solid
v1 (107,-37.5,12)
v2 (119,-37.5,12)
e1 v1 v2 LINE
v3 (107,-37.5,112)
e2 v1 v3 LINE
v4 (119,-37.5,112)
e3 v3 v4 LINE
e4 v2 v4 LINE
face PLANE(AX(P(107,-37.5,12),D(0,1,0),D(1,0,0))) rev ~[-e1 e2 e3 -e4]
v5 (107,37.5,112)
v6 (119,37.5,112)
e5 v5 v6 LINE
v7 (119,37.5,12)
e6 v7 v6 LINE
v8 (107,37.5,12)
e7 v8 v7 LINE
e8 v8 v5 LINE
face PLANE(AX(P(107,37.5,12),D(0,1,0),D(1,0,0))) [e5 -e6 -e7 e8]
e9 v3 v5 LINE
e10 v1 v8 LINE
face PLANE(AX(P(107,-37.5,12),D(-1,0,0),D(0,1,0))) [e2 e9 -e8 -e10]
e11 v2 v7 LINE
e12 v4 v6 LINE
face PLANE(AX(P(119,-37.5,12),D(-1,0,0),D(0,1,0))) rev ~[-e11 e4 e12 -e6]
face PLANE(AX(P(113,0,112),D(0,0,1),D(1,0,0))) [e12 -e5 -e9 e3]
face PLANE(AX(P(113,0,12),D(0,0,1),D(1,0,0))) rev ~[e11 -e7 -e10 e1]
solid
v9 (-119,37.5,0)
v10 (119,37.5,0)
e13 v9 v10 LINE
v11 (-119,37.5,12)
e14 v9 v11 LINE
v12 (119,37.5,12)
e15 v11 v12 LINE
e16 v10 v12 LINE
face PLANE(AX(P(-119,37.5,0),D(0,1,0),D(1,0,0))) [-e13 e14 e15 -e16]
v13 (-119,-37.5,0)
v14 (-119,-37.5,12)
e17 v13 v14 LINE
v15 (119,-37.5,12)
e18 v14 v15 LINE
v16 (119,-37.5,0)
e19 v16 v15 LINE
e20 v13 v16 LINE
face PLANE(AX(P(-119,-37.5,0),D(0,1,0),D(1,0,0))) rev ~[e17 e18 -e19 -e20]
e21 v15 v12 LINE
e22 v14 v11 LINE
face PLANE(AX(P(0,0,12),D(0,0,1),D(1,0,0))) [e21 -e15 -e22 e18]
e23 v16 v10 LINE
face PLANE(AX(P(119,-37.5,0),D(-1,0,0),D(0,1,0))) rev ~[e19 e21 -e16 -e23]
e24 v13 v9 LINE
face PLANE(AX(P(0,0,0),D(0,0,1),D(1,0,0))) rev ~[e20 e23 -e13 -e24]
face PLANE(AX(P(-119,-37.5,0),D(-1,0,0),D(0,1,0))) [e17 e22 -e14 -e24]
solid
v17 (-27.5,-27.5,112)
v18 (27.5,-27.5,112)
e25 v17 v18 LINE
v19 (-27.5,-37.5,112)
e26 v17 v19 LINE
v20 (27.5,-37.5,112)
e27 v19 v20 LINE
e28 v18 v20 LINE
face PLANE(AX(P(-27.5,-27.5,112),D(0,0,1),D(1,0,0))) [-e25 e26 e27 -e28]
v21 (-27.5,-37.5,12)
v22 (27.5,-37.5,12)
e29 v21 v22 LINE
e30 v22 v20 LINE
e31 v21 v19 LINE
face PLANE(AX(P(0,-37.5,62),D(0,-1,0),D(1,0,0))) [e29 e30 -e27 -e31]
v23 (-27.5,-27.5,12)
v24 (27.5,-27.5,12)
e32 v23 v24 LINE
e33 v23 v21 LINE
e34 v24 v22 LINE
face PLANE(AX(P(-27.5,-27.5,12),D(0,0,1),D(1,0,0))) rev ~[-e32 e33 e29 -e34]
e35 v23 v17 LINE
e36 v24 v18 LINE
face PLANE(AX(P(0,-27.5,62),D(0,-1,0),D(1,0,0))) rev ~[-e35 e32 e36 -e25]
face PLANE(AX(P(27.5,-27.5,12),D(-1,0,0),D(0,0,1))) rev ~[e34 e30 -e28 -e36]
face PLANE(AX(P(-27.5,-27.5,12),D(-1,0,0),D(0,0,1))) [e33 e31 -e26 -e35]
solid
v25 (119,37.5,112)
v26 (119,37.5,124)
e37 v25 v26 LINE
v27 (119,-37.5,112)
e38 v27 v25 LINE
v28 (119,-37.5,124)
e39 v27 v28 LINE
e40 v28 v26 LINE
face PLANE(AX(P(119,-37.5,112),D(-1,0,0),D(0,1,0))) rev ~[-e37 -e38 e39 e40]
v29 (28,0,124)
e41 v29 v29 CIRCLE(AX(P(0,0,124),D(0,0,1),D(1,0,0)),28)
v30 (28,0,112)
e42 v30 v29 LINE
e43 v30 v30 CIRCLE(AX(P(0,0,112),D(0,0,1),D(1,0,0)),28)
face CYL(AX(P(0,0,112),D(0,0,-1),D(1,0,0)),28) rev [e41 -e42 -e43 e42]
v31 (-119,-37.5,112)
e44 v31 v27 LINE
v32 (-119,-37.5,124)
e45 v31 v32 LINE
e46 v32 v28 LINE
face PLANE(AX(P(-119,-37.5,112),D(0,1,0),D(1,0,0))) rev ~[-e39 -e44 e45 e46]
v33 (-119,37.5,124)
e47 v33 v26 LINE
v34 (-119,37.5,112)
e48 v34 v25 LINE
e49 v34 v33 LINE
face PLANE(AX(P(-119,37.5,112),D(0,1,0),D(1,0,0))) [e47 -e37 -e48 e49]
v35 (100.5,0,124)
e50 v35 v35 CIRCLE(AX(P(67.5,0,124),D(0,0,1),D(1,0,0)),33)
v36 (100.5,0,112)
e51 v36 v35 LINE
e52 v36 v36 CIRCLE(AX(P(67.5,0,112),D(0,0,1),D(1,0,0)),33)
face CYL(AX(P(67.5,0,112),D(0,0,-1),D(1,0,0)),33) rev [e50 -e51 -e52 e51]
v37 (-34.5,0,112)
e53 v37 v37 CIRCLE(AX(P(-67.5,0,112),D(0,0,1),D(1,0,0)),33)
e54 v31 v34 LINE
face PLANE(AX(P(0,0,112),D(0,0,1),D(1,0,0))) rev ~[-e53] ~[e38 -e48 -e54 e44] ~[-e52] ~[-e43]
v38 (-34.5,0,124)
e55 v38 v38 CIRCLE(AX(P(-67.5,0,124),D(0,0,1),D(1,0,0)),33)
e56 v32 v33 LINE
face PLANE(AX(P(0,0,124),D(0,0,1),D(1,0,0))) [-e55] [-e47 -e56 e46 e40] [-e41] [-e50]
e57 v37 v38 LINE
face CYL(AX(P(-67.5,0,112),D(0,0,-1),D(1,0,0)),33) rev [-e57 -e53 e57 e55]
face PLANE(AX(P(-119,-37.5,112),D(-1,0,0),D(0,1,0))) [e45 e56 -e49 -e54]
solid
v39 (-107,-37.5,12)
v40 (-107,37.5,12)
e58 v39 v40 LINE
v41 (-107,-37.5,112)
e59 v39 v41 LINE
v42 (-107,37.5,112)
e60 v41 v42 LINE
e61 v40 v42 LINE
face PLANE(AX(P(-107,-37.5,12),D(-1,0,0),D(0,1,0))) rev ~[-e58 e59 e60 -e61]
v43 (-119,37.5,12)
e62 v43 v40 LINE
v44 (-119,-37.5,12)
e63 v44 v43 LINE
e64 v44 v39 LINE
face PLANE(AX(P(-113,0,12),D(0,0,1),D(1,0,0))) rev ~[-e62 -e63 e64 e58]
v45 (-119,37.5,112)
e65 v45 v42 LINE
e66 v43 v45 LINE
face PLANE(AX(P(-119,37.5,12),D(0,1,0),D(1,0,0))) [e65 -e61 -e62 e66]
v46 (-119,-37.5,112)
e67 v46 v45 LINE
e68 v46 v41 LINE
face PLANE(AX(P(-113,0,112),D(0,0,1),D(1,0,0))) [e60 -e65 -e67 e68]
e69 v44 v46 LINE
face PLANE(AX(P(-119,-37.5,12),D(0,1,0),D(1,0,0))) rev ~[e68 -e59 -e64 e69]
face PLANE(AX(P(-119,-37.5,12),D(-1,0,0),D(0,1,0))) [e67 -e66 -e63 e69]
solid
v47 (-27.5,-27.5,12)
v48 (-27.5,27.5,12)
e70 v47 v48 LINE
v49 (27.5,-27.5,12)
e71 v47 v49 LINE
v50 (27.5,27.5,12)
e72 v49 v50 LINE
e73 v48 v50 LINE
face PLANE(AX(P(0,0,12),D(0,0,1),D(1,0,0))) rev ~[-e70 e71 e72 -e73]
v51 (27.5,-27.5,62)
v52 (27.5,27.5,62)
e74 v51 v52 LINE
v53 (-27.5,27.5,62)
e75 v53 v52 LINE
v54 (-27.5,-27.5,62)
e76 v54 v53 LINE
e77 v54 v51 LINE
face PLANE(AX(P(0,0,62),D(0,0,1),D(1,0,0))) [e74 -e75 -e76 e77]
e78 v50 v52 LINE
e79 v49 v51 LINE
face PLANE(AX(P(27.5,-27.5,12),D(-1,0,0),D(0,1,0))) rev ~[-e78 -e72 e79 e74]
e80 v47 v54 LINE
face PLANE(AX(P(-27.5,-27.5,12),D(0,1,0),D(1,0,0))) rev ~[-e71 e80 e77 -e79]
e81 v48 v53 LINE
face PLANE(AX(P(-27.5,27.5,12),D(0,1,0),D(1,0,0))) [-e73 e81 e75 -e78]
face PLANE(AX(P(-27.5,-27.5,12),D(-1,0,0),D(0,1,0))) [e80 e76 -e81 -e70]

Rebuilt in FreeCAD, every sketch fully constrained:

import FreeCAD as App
import Part
import Sketcher

V = App.Vector

doc = App.newDocument("Part")
params = doc.addObject("Spreadsheet::Sheet", "Params")
for row, (alias, value) in enumerate([
    ("sketch1_width", "238 mm"),
    ("sketch1_height", "75 mm"),
    ("pad1_length", "12 mm"),
    ("sketch2_diameter", "66 mm"),
    ("sketch2_diameter2", "56 mm"),
    ("sketch2_width", "238 mm"),
    ("sketch2_height", "75 mm"),
    ("pad2_length", "12 mm"),
    ("sketch3_width", "12 mm"),
    ("sketch3_height", "75 mm"),
    ("pad3_length", "100 mm"),
    ("sketch4_width", "55 mm"),
    ("pad4_length", "50 mm"),
    ("sketch5_width", "55 mm"),
    ("sketch5_height", "100 mm"),
    ("pad5_length", "10 mm"),
], start=1):
    params.set(f"A{row}", alias)
    params.set(f"B{row}", "=" + value)
    params.setAlias(f"B{row}", alias)

body = doc.addObject("PartDesign::Body", "Body")

sketch1 = body.newObject("Sketcher::SketchObject", "Sketch")
sketch1.AttachmentSupport = (doc.getObject("XY_Plane"), [""])
sketch1.MapMode = "FlatFace"
sketch1.addGeometry([
    Part.LineSegment(V(-119, 37.5, 0), V(-119, -37.5, 0)),
    Part.LineSegment(V(-119, -37.5, 0), V(119, -37.5, 0)),
    Part.LineSegment(V(119, -37.5, 0), V(119, 37.5, 0)),
    Part.LineSegment(V(119, 37.5, 0), V(-119, 37.5, 0)),
], False)
sketch1.addConstraint([
    Sketcher.Constraint("Coincident", 0, 2, 1, 1),
    Sketcher.Constraint("Coincident", 1, 2, 2, 1),
    Sketcher.Constraint("Coincident", 2, 2, 3, 1),
    Sketcher.Constraint("Coincident", 3, 2, 0, 1),
    Sketcher.Constraint("Vertical", 0),
    Sketcher.Constraint("Horizontal", 1),
    Sketcher.Constraint("Vertical", 2),
    Sketcher.Constraint("Horizontal", 3),
    Sketcher.Constraint("Symmetric", 0, 2, 2, 2, -1, 1),
    Sketcher.Constraint("DistanceX", 1, 1, 1, 2, 238.0),
    Sketcher.Constraint("DistanceY", 0, 2, 0, 1, 75.0),
])
sketch1.setExpression("Constraints[9]", "Params.sketch1_width")
sketch1.setExpression("Constraints[10]", "Params.sketch1_height")
pad1 = body.newObject("PartDesign::Pad", "Pad")
pad1.Profile = sketch1
pad1.setExpression("Length", "Params.pad1_length")
body2 = doc.addObject("PartDesign::Body", "Body001")

sketch2 = body2.newObject("Sketcher::SketchObject", "Sketch001")
sketch2.AttachmentSupport = (doc.getObject("XY_Plane001"), [""])
sketch2.MapMode = "FlatFace"
sketch2.AttachmentOffset = App.Placement(V(0, 0, 112), App.Rotation())
sketch2.addGeometry([
    Part.LineSegment(V(-119, 37.5, 0), V(-119, -37.5, 0)),
    Part.LineSegment(V(-119, -37.5, 0), V(119, -37.5, 0)),
    Part.LineSegment(V(119, -37.5, 0), V(119, 37.5, 0)),
    Part.LineSegment(V(119, 37.5, 0), V(-119, 37.5, 0)),
    Part.Circle(V(-67.5, 0, 0), V(0, 0, 1), 33),
    Part.Circle(V(0, 0, 0), V(0, 0, 1), 28),
    Part.Circle(V(67.5, 0, 0), V(0, 0, 1), 33),
], False)
sketch2.addConstraint([
    Sketcher.Constraint("Coincident", 0, 2, 1, 1),
    Sketcher.Constraint("Coincident", 1, 2, 2, 1),
    Sketcher.Constraint("Coincident", 2, 2, 3, 1),
    Sketcher.Constraint("Coincident", 3, 2, 0, 1),
    Sketcher.Constraint("Vertical", 0),
    Sketcher.Constraint("Horizontal", 1),
    Sketcher.Constraint("Vertical", 2),
    Sketcher.Constraint("Horizontal", 3),
    Sketcher.Constraint("Coincident", 5, 3, -1, 1),
    Sketcher.Constraint("Equal", 4, 6),
    Sketcher.Constraint("Symmetric", 4, 3, 6, 3, -1, 1),
    Sketcher.Constraint("Symmetric", 0, 2, 2, 2, -1, 1),
    Sketcher.Constraint("PointOnObject", 4, 3, -1),
    Sketcher.Constraint("Diameter", 4, 66.0),
    Sketcher.Constraint("Diameter", 5, 56.0),
    Sketcher.Constraint("DistanceX", 1, 1, 1, 2, 238.0),
    Sketcher.Constraint("DistanceY", 0, 2, 0, 1, 75.0),
    Sketcher.Constraint("DistanceX", 4, 3, 6, 3, 135.0),
])
sketch2.setExpression("Constraints[13]", "Params.sketch2_diameter")
sketch2.setExpression("Constraints[14]", "Params.sketch2_diameter2")
sketch2.setExpression("Constraints[15]", "Params.sketch2_width")
sketch2.setExpression("Constraints[16]", "Params.sketch2_height")
pad2 = body2.newObject("PartDesign::Pad", "Pad001")
pad2.Profile = sketch2
pad2.setExpression("Length", "Params.pad2_length")
body3 = doc.addObject("PartDesign::Body", "Body002")
body3.AllowCompound = True

sketch3 = body3.newObject("Sketcher::SketchObject", "Sketch002")
sketch3.AttachmentSupport = (doc.getObject("XY_Plane002"), [""])
sketch3.MapMode = "FlatFace"
sketch3.AttachmentOffset = App.Placement(V(0, 0, 12), App.Rotation())
sketch3.addGeometry([
    Part.LineSegment(V(-119, 37.5, 0), V(-119, -37.5, 0)),
    Part.LineSegment(V(-119, -37.5, 0), V(-107, -37.5, 0)),
    Part.LineSegment(V(-107, -37.5, 0), V(-107, 37.5, 0)),
    Part.LineSegment(V(-107, 37.5, 0), V(-119, 37.5, 0)),
    Part.LineSegment(V(107, 37.5, 0), V(107, -37.5, 0)),
    Part.LineSegment(V(107, -37.5, 0), V(119, -37.5, 0)),
    Part.LineSegment(V(119, -37.5, 0), V(119, 37.5, 0)),
    Part.LineSegment(V(119, 37.5, 0), V(107, 37.5, 0)),
], False)
sketch3.addConstraint([
    Sketcher.Constraint("Coincident", 0, 2, 1, 1),
    Sketcher.Constraint("Coincident", 1, 2, 2, 1),
    Sketcher.Constraint("Coincident", 2, 2, 3, 1),
    Sketcher.Constraint("Coincident", 3, 2, 0, 1),
    Sketcher.Constraint("Coincident", 4, 2, 5, 1),
    Sketcher.Constraint("Coincident", 5, 2, 6, 1),
    Sketcher.Constraint("Coincident", 6, 2, 7, 1),
    Sketcher.Constraint("Coincident", 7, 2, 4, 1),
    Sketcher.Constraint("Vertical", 0),
    Sketcher.Constraint("Horizontal", 1),
    Sketcher.Constraint("Vertical", 2),
    Sketcher.Constraint("Horizontal", 3),
    Sketcher.Constraint("Vertical", 4),
    Sketcher.Constraint("Horizontal", 5),
    Sketcher.Constraint("Vertical", 6),
    Sketcher.Constraint("Horizontal", 7),
    Sketcher.Constraint("Symmetric", 2, 2, 4, 2, -1, 1),
    Sketcher.Constraint("Symmetric", 0, 2, 6, 2, -1, 1),
    Sketcher.Constraint("Horizontal", 1, 2, 4, 2),
    Sketcher.Constraint("DistanceX", 1, 1, 1, 2, 12.0),
    Sketcher.Constraint("DistanceY", 0, 2, 0, 1, 75.0),
    Sketcher.Constraint("DistanceX", 0, 2, -1, 1, 119.0),
])
sketch3.setExpression("Constraints[19]", "Params.sketch3_width")
sketch3.setExpression("Constraints[20]", "Params.sketch3_height")
pad3 = body3.newObject("PartDesign::Pad", "Pad002")
pad3.Profile = sketch3
pad3.setExpression("Length", "Params.pad3_length")
body4 = doc.addObject("PartDesign::Body", "Body003")

sketch4 = body4.newObject("Sketcher::SketchObject", "Sketch003")
sketch4.AttachmentSupport = (doc.getObject("XY_Plane003"), [""])
sketch4.MapMode = "FlatFace"
sketch4.AttachmentOffset = App.Placement(V(0, 0, 12), App.Rotation())
sketch4.addGeometry([
    Part.LineSegment(V(-27.5, 27.5, 0), V(-27.5, -27.5, 0)),
    Part.LineSegment(V(-27.5, -27.5, 0), V(27.5, -27.5, 0)),
    Part.LineSegment(V(27.5, -27.5, 0), V(27.5, 27.5, 0)),
    Part.LineSegment(V(27.5, 27.5, 0), V(-27.5, 27.5, 0)),
], False)
sketch4.addConstraint([
    Sketcher.Constraint("Coincident", 0, 2, 1, 1),
    Sketcher.Constraint("Coincident", 1, 2, 2, 1),
    Sketcher.Constraint("Coincident", 2, 2, 3, 1),
    Sketcher.Constraint("Coincident", 3, 2, 0, 1),
    Sketcher.Constraint("Vertical", 0),
    Sketcher.Constraint("Horizontal", 1),
    Sketcher.Constraint("Vertical", 2),
    Sketcher.Constraint("Horizontal", 3),
    Sketcher.Constraint("Symmetric", 0, 2, 2, 2, -1, 1),
    Sketcher.Constraint("Equal", 3, 0),
    Sketcher.Constraint("DistanceX", 1, 1, 1, 2, 55.0),
])
sketch4.setExpression("Constraints[10]", "Params.sketch4_width")
pad4 = body4.newObject("PartDesign::Pad", "Pad003")
pad4.Profile = sketch4
pad4.setExpression("Length", "Params.pad4_length")
body5 = doc.addObject("PartDesign::Body", "Body004")

sketch5 = body5.newObject("Sketcher::SketchObject", "Sketch004")
sketch5.AttachmentSupport = (doc.getObject("XZ_Plane004"), [""])
sketch5.MapMode = "FlatFace"
sketch5.AttachmentOffset = App.Placement(V(0, 0, 27.5), App.Rotation())
sketch5.addGeometry([
    Part.LineSegment(V(-27.5, 112, 0), V(-27.5, 12, 0)),
    Part.LineSegment(V(-27.5, 12, 0), V(27.5, 12, 0)),
    Part.LineSegment(V(27.5, 12, 0), V(27.5, 112, 0)),
    Part.LineSegment(V(27.5, 112, 0), V(-27.5, 112, 0)),
], False)
sketch5.addConstraint([
    Sketcher.Constraint("Coincident", 0, 2, 1, 1),
    Sketcher.Constraint("Coincident", 1, 2, 2, 1),
    Sketcher.Constraint("Coincident", 2, 2, 3, 1),
    Sketcher.Constraint("Coincident", 3, 2, 0, 1),
    Sketcher.Constraint("Vertical", 0),
    Sketcher.Constraint("Horizontal", 1),
    Sketcher.Constraint("Vertical", 2),
    Sketcher.Constraint("Horizontal", 3),
    Sketcher.Constraint("DistanceX", 1, 1, 1, 2, 55.0),
    Sketcher.Constraint("DistanceY", 0, 2, 0, 1, 100.0),
    Sketcher.Constraint("DistanceY", -1, 1, 0, 2, 12.0),
    Sketcher.Constraint("DistanceX", 0, 2, -1, 1, 27.5),
])
sketch5.setExpression("Constraints[8]", "Params.sketch5_width")
sketch5.setExpression("Constraints[9]", "Params.sketch5_height")
pad5 = body5.newObject("PartDesign::Pad", "Pad004")
pad5.Profile = sketch5
pad5.setExpression("Length", "Params.pad5_length")

doc.recompute()
